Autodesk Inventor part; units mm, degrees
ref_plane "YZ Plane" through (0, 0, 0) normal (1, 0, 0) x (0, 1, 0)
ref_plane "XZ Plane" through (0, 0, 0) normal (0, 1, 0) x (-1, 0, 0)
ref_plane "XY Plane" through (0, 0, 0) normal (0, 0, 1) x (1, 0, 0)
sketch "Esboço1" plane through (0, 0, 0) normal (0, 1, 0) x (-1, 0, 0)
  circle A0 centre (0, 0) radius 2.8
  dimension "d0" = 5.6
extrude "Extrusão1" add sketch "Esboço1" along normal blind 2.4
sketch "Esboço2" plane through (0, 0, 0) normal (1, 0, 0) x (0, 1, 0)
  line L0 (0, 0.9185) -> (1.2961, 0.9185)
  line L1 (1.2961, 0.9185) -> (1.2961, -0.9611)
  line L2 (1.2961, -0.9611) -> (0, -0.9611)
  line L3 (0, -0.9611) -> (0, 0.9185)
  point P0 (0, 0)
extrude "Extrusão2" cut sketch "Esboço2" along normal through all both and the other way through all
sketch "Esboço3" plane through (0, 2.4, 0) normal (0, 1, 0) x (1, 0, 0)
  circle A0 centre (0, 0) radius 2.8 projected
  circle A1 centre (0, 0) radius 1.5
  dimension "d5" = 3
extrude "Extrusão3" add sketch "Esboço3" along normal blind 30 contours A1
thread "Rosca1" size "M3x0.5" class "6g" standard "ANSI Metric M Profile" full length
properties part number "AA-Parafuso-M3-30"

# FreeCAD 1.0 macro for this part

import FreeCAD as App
import Part
import Sketcher
from FreeCAD import Vector
Q = App.Units.Quantity

doc = App.newDocument("Part")
params = doc.addObject("Spreadsheet::Sheet", "Params")
for row, (alias, value) in enumerate([
    ("sketch1_diameter", "5.6 mm"),
    ("pad1_length", "2.4 mm"),
    ("sketch3_diameter", "3 mm"),
    ("pad2_length", "30 mm"),
], start=1):
    params.set(f"A{row}", alias)
    params.set(f"B{row}", "=" + value)
    params.setAlias(f"B{row}", alias)

body = doc.addObject("PartDesign::Body", "Body")

# Sketch on XZ plane
sketch1 = body.newObject("Sketcher::SketchObject", "Sketch")
sketch1.AttachmentSupport = (doc.getObject("XZ_Plane"), [""])
sketch1.MapMode = "FlatFace"
sketch1.addGeometry(Part.Circle(Vector(0, 0, 0), Vector(0, 0, 1), 2.8), False)
sketch1.addConstraint([
    Sketcher.Constraint("Coincident", 0, 3, -1, 1),
    Sketcher.Constraint("Diameter", 0, Q("5.6 mm")),
])
sketch1.setExpression("Constraints[1]", "Params.sketch1_diameter")
pad1 = body.newObject("PartDesign::Pad", "Pad")
pad1.Profile = sketch1
pad1.setExpression("Length", "Params.pad1_length")
pad1.Reversed = True

# Sketch on YZ plane
sketch2 = body.newObject("Sketcher::SketchObject", "Sketch001")
sketch2.AttachmentSupport = (doc.getObject("YZ_Plane"), [""])
sketch2.MapMode = "FlatFace"
sketch2.addGeometry([
    Part.LineSegment(Vector(1.2961, 0.9185, 0), Vector(0, 0.9185, 0)),
    Part.LineSegment(Vector(0, 0.9185, 0), Vector(0, -0.9611, 0)),
    Part.LineSegment(Vector(0, -0.9611, 0), Vector(1.2961, -0.9611, 0)),
    Part.LineSegment(Vector(1.2961, -0.9611, 0), Vector(1.2961, 0.9185, 0)),
], False)
sketch2.addConstraint([
    Sketcher.Constraint("Coincident", 0, 2, 1, 1),
    Sketcher.Constraint("Coincident", 1, 2, 2, 1),
    Sketcher.Constraint("Coincident", 2, 2, 3, 1),
    Sketcher.Constraint("Coincident", 3, 2, 0, 1),
    Sketcher.Constraint("Horizontal", 0),
    Sketcher.Constraint("Vertical", 1),
    Sketcher.Constraint("Horizontal", 2),
    Sketcher.Constraint("Vertical", 3),
    Sketcher.Constraint("PointOnObject", 0, 2, -2),
    Sketcher.Constraint("DistanceX", 0, 2, 0, 1, Q("1.296 mm")),
    Sketcher.Constraint("DistanceY", 1, 2, 1, 1, Q("1.8796 mm")),
    Sketcher.Constraint("DistanceY", 1, 2, -1, 1, Q("0.961 mm")),
])
pocket1 = body.newObject("PartDesign::Pocket", "Pocket")
pocket1.Profile = sketch2
pocket1.Type = "ThroughAll"
pocket1.Midplane = True

# Sketch on XZ plane
sketch3 = body.newObject("Sketcher::SketchObject", "Sketch002")
sketch3.AttachmentSupport = (doc.getObject("XZ_Plane"), [""])
sketch3.MapMode = "FlatFace"
sketch3.AttachmentOffset = App.Placement(Vector(0, 0, -2.4), App.Rotation())
sketch3.addGeometry(Part.Circle(Vector(0, 0, 0), Vector(0, 0, 1), 1.5), False)
sketch3.addConstraint([
    Sketcher.Constraint("Coincident", 0, 3, -1, 1),
    Sketcher.Constraint("Diameter", 0, Q("3 mm")),
])
sketch3.setExpression("Constraints[1]", "Params.sketch3_diameter")
pad2 = body.newObject("PartDesign::Pad", "Pad001")
pad2.Profile = sketch3
pad2.setExpression("Length", "Params.pad2_length")
pad2.Reversed = True

doc.recompute()
